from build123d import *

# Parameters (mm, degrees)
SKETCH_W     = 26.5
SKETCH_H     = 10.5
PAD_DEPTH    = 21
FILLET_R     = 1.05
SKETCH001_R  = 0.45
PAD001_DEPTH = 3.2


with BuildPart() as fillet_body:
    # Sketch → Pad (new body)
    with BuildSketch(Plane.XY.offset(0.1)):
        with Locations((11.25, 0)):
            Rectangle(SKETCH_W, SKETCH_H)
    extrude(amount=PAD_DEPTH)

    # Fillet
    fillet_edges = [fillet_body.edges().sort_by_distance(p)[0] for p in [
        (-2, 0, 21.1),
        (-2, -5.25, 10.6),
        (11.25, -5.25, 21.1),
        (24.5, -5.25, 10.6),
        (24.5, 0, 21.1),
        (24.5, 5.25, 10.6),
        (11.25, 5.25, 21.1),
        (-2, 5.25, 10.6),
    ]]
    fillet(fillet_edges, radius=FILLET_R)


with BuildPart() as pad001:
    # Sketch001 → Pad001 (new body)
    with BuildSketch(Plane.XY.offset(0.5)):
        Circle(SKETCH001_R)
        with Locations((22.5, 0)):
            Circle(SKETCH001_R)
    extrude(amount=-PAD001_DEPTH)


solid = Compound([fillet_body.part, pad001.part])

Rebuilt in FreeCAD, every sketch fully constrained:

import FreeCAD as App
import Part
import Sketcher

V = App.Vector
Q = App.Units.Quantity


def edges_at(feature, points):
    """Names of the edges that pass closest to the given points."""
    edges = feature.Shape.Edges
    near = lambda p: min(range(len(edges)), key=lambda i: edges[i].distToShape(Part.Vertex(*p))[0])
    return sorted({f"Edge{near(p) + 1}" for p in points})


def add_polygon(sketch, points):
    """Adds a closed chain of lines whose ends are joined by coincident constraints."""
    first, n = sketch.GeometryCount, len(points)
    for a, b in zip(points, points[1:] + points[:1]):
        sketch.addGeometry(Part.LineSegment(App.Vector(*a, 0), App.Vector(*b, 0)), False)
    for i in range(n):
        sketch.addConstraint(Sketcher.Constraint("Coincident", first + i, 2, first + (i + 1) % n, 1))

doc = App.newDocument("Part")
body = doc.addObject("PartDesign::Body", "Body")

sketch1 = body.newObject("Sketcher::SketchObject", "Sketch")
sketch1.AttachmentSupport = (doc.getObject("XY_Plane"), [""])
sketch1.MapMode = "FlatFace"
sketch1.AttachmentOffset = App.Placement(V(0, 0, 0.1), App.Rotation())
add_polygon(sketch1, [(-2, 5), (-2, -5), (24, -5), (24, 5)])
sketch1.addConstraint(Sketcher.Constraint("Vertical", 0))
sketch1.addConstraint(Sketcher.Constraint("Horizontal", 1))
sketch1.addConstraint(Sketcher.Constraint("Vertical", 2))
sketch1.addConstraint(Sketcher.Constraint("Horizontal", 3))
sketch1.addConstraint(Sketcher.Constraint("DistanceX", 1, 1, 1, 2, Q("26.5 mm")))
sketch1.addConstraint(Sketcher.Constraint("DistanceY", 0, 2, 0, 1, Q("10.5 mm")))
sketch1.addConstraint(Sketcher.Constraint("DistanceX", 0, 2, -1, 1, Q("2 mm")))
sketch1.addConstraint(Sketcher.Constraint("DistanceY", 0, 2, -1, 1, Q("5.25 mm")))
pad1 = body.newObject("PartDesign::Pad", "Pad")
pad1.Profile = sketch1
pad1.Length = 21
doc.recompute()

fillet = body.newObject("PartDesign::Fillet", "Fillet")
fillet.Base = (pad1, edges_at(pad1, [
    (-2, 0, 21.1),
    (-2, -5.25, 10.6),
    (11.25, -5.25, 21.1),
    (24.5, -5.25, 10.6),
    (24.5, 0, 21.1),
    (24.5, 5.25, 10.6),
    (11.25, 5.25, 21.1),
    (-2, 5.25, 10.6),
]))
fillet.Radius = 1.05
body2 = doc.addObject("PartDesign::Body", "Body001")
body2.AllowCompound = True

sketch2 = body2.newObject("Sketcher::SketchObject", "Sketch001")
sketch2.AttachmentSupport = (doc.getObject("XY_Plane001"), [""])
sketch2.MapMode = "FlatFace"
sketch2.AttachmentOffset = App.Placement(V(0, 0, 0.5), App.Rotation())
sketch2.addGeometry(Part.Circle(V(0, 0, 0), V(0, 0, 1), 0.45), False)
sketch2.addGeometry(Part.Circle(V(22.5, 0, 0), V(0, 0, 1), 0.45), False)
sketch2.addConstraint(Sketcher.Constraint("Coincident", 0, 3, -1, 1))
sketch2.addConstraint(Sketcher.Constraint("Equal", 0, 1))
sketch2.addConstraint(Sketcher.Constraint("PointOnObject", 1, 3, -1))
sketch2.addConstraint(Sketcher.Constraint("Diameter", 0, Q("0.9 mm")))
sketch2.addConstraint(Sketcher.Constraint("DistanceX", -1, 1, 1, 3, Q("22.5 mm")))
pad2 = body2.newObject("PartDesign::Pad", "Pad001")
pad2.Profile = sketch2
pad2.Length = 3.2
pad2.Reversed = True

doc.recompute()
